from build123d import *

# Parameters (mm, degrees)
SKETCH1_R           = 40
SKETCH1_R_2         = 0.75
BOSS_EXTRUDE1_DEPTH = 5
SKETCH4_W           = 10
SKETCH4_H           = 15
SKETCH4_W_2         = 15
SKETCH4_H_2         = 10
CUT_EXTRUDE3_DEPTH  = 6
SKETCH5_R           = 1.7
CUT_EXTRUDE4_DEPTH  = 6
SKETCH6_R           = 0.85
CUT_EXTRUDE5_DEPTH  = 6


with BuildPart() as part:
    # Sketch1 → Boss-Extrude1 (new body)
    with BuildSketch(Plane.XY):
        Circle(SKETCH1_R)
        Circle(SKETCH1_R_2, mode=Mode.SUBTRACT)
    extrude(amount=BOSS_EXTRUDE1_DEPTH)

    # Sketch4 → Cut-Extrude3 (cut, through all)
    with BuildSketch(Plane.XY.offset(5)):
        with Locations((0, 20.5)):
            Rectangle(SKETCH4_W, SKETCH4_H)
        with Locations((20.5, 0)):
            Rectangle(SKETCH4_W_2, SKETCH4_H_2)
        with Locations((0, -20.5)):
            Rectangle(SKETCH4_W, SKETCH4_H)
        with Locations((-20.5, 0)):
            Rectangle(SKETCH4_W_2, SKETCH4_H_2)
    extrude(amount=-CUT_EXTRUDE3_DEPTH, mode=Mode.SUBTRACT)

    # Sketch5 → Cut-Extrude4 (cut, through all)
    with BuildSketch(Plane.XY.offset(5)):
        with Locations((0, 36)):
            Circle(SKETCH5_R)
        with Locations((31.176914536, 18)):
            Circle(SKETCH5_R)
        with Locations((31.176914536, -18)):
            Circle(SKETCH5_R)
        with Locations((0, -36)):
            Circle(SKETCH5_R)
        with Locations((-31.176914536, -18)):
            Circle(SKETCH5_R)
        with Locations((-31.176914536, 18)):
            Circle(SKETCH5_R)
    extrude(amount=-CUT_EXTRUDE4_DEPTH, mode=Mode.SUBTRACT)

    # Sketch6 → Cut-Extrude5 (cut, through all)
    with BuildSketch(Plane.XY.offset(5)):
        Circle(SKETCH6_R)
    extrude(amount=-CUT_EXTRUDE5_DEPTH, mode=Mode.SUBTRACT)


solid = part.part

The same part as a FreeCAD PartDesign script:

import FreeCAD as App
import Part
import Sketcher

V = App.Vector

doc = App.newDocument("Part")
body = doc.addObject("PartDesign::Body", "Body")

# Sketch on XY plane
sketch1 = body.newObject("Sketcher::SketchObject", "Sketch")
sketch1.AttachmentSupport = (doc.getObject("XY_Plane"), [""])
sketch1.MapMode = "FlatFace"
sketch1.addGeometry([
    Part.Circle(V(0, 0, 0), V(0, 0, 1), 40),
    Part.Circle(V(0, 0, 0), V(0, 0, 1), 0.8),
], False)
sketch1.addConstraint([
    Sketcher.Constraint("Coincident", 0, 3, -1, 1),
    Sketcher.Constraint("Coincident", 1, 3, -1, 1),
    Sketcher.Constraint("Diameter", 0, 80.0),
    Sketcher.Constraint("Diameter", 1, 1.5),
])
pad1 = body.newObject("PartDesign::Pad", "Pad")
pad1.Profile = sketch1
pad1.Length = 5

# Sketch on XY plane
sketch2 = body.newObject("Sketcher::SketchObject", "Sketch001")
sketch2.AttachmentSupport = (doc.getObject("XY_Plane"), [""])
sketch2.MapMode = "FlatFace"
sketch2.AttachmentOffset = App.Placement(V(0, 0, 5), App.Rotation())
sketch2.addGeometry([
    Part.LineSegment(V(-5, 28, 0), V(-5, 13, 0)),  # 0
    Part.LineSegment(V(-5, 13, 0), V(5, 13, 0)),  # 1
    Part.LineSegment(V(5, 13, 0), V(5, 28, 0)),  # 2
    Part.LineSegment(V(5, 28, 0), V(-5, 28, 0)),  # 3
    Part.LineSegment(V(13, 5, 0), V(13, -5, 0)),  # 4
    Part.LineSegment(V(13, -5, 0), V(28, -5, 0)),  # 5
    Part.LineSegment(V(28, -5, 0), V(28, 5, 0)),  # 6
    Part.LineSegment(V(28, 5, 0), V(13, 5, 0)),  # 7
    Part.LineSegment(V(-5, -13, 0), V(-5, -28, 0)),  # 8
    Part.LineSegment(V(-5, -28, 0), V(5, -28, 0)),  # 9
    Part.LineSegment(V(5, -28, 0), V(5, -13, 0)),  # 10
    Part.LineSegment(V(5, -13, 0), V(-5, -13, 0)),  # 11
    Part.LineSegment(V(-28, 5, 0), V(-28, -5, 0)),  # 12
    Part.LineSegment(V(-28, -5, 0), V(-13, -5, 0)),  # 13
    Part.LineSegment(V(-13, -5, 0), V(-13, 5, 0)),  # 14
    Part.LineSegment(V(-13, 5, 0), V(-28, 5, 0)),  # 15
], False)
sketch2.addConstraint([
    Sketcher.Constraint("Coincident", 0, 2, 1, 1),
    Sketcher.Constraint("Coincident", 1, 2, 2, 1),
    Sketcher.Constraint("Coincident", 2, 2, 3, 1),
    Sketcher.Constraint("Coincident", 3, 2, 0, 1),
    Sketcher.Constraint("Coincident", 4, 2, 5, 1),
    Sketcher.Constraint("Coincident", 5, 2, 6, 1),
    Sketcher.Constraint("Coincident", 6, 2, 7, 1),
    Sketcher.Constraint("Coincident", 7, 2, 4, 1),
    Sketcher.Constraint("Coincident", 8, 2, 9, 1),
    Sketcher.Constraint("Coincident", 9, 2, 10, 1),
    Sketcher.Constraint("Coincident", 10, 2, 11, 1),
    Sketcher.Constraint("Coincident", 11, 2, 8, 1),
    Sketcher.Constraint("Coincident", 12, 2, 13, 1),
    Sketcher.Constraint("Coincident", 13, 2, 14, 1),
    Sketcher.Constraint("Coincident", 14, 2, 15, 1),
    Sketcher.Constraint("Coincident", 15, 2, 12, 1),
    Sketcher.Constraint("Vertical", 0),
    Sketcher.Constraint("Horizontal", 1),
    Sketcher.Constraint("Vertical", 2),
    Sketcher.Constraint("Horizontal", 3),
    Sketcher.Constraint("Vertical", 4),
    Sketcher.Constraint("Horizontal", 5),
    Sketcher.Constraint("Vertical", 6),
    Sketcher.Constraint("Horizontal", 7),
    Sketcher.Constraint("Vertical", 8),
    Sketcher.Constraint("Horizontal", 9),
    Sketcher.Constraint("Vertical", 10),
    Sketcher.Constraint("Horizontal", 11),
    Sketcher.Constraint("Vertical", 12),
    Sketcher.Constraint("Horizontal", 13),
    Sketcher.Constraint("Vertical", 14),
    Sketcher.Constraint("Horizontal", 15),
    Sketcher.Constraint("Symmetric", 2, 2, 8, 2, -1, 1),
    Sketcher.Constraint("Symmetric", 0, 2, 10, 2, -1, 1),
    Sketcher.Constraint("Symmetric", 6, 2, 12, 2, -1, 1),
    Sketcher.Constraint("Symmetric", 4, 2, 14, 2, -1, 1),
    Sketcher.Constraint("Horizontal", 5, 2, 12, 2),
    Sketcher.Constraint("Vertical", 3, 2, 8, 2),
    Sketcher.Constraint("Equal", 15, 0),
    Sketcher.Constraint("Equal", 11, 4),
    Sketcher.Constraint("DistanceX", 1, 1, 1, 2, 10.0),
    Sketcher.Constraint("DistanceX", 5, 1, 5, 2, 15.0),
    Sketcher.Constraint("DistanceY", -1, 1, 0, 2, 13.0),
    Sketcher.Constraint("DistanceX", -1, 1, 4, 2, 13.0),
])
pocket1 = body.newObject("PartDesign::Pocket", "Pocket")
pocket1.Profile = sketch2
pocket1.Type = "ThroughAll"

# Sketch on XY plane
sketch3 = body.newObject("Sketcher::SketchObject", "Sketch002")
sketch3.AttachmentSupport = (doc.getObject("XY_Plane"), [""])
sketch3.MapMode = "FlatFace"
sketch3.AttachmentOffset = App.Placement(V(0, 0, 5), App.Rotation())
sketch3.addGeometry([
    Part.Circle(V(0, 36, 0), V(0, 0, 1), 1.7),  # 0
    Part.Circle(V(31.2, 18, 0), V(0, 0, 1), 1.7),  # 1
    Part.Circle(V(31.2, -18, 0), V(0, 0, 1), 1.7),  # 2
    Part.Circle(V(0, -36, 0), V(0, 0, 1), 1.7),  # 3
    Part.Circle(V(-31.2, -18, 0), V(0, 0, 1), 1.7),  # 4
    Part.Circle(V(-31.2, 18, 0), V(0, 0, 1), 1.7),  # 5
], False)
sketch3.addConstraint([
    Sketcher.Constraint("Equal", 0, 1),
    Sketcher.Constraint("Equal", 1, 2),
    Sketcher.Constraint("Equal", 2, 3),
    Sketcher.Constraint("Equal", 3, 4),
    Sketcher.Constraint("Equal", 4, 5),
    Sketcher.Constraint("Symmetric", 0, 3, 3, 3, -1, 1),
    Sketcher.Constraint("Symmetric", 1, 3, 4, 3, -1, 1),
    Sketcher.Constraint("Symmetric", 2, 3, 5, 3, -1, 1),
    Sketcher.Constraint("Symmetric", 2, 3, 4, 3, -2),
    Sketcher.Constraint("PointOnObject", 0, 3, -2),
    Sketcher.Constraint("Diameter", 0, 3.4),
    Sketcher.Constraint("DistanceY", -1, 1, 0, 3, 36.0),
    Sketcher.Constraint("DistanceY", -1, 1, 1, 3, 18.0),
    Sketcher.Constraint("DistanceX", 4, 3, 2, 3, 62.353829),
])
pocket2 = body.newObject("PartDesign::Pocket", "Pocket001")
pocket2.Profile = sketch3
pocket2.Type = "ThroughAll"

# Sketch on XY plane
sketch4 = body.newObject("Sketcher::SketchObject", "Sketch003")
sketch4.AttachmentSupport = (doc.getObject("XY_Plane"), [""])
sketch4.MapMode = "FlatFace"
sketch4.AttachmentOffset = App.Placement(V(0, 0, 5), App.Rotation())
sketch4.addGeometry(Part.Circle(V(0, 0, 0), V(0, 0, 1), 0.8), False)
sketch4.addConstraint([
    Sketcher.Constraint("Coincident", 0, 3, -1, 1),
    Sketcher.Constraint("Diameter", 0, 1.7),
])
pocket3 = body.newObject("PartDesign::Pocket", "Pocket002")
pocket3.Profile = sketch4
pocket3.Type = "ThroughAll"

doc.recompute()
